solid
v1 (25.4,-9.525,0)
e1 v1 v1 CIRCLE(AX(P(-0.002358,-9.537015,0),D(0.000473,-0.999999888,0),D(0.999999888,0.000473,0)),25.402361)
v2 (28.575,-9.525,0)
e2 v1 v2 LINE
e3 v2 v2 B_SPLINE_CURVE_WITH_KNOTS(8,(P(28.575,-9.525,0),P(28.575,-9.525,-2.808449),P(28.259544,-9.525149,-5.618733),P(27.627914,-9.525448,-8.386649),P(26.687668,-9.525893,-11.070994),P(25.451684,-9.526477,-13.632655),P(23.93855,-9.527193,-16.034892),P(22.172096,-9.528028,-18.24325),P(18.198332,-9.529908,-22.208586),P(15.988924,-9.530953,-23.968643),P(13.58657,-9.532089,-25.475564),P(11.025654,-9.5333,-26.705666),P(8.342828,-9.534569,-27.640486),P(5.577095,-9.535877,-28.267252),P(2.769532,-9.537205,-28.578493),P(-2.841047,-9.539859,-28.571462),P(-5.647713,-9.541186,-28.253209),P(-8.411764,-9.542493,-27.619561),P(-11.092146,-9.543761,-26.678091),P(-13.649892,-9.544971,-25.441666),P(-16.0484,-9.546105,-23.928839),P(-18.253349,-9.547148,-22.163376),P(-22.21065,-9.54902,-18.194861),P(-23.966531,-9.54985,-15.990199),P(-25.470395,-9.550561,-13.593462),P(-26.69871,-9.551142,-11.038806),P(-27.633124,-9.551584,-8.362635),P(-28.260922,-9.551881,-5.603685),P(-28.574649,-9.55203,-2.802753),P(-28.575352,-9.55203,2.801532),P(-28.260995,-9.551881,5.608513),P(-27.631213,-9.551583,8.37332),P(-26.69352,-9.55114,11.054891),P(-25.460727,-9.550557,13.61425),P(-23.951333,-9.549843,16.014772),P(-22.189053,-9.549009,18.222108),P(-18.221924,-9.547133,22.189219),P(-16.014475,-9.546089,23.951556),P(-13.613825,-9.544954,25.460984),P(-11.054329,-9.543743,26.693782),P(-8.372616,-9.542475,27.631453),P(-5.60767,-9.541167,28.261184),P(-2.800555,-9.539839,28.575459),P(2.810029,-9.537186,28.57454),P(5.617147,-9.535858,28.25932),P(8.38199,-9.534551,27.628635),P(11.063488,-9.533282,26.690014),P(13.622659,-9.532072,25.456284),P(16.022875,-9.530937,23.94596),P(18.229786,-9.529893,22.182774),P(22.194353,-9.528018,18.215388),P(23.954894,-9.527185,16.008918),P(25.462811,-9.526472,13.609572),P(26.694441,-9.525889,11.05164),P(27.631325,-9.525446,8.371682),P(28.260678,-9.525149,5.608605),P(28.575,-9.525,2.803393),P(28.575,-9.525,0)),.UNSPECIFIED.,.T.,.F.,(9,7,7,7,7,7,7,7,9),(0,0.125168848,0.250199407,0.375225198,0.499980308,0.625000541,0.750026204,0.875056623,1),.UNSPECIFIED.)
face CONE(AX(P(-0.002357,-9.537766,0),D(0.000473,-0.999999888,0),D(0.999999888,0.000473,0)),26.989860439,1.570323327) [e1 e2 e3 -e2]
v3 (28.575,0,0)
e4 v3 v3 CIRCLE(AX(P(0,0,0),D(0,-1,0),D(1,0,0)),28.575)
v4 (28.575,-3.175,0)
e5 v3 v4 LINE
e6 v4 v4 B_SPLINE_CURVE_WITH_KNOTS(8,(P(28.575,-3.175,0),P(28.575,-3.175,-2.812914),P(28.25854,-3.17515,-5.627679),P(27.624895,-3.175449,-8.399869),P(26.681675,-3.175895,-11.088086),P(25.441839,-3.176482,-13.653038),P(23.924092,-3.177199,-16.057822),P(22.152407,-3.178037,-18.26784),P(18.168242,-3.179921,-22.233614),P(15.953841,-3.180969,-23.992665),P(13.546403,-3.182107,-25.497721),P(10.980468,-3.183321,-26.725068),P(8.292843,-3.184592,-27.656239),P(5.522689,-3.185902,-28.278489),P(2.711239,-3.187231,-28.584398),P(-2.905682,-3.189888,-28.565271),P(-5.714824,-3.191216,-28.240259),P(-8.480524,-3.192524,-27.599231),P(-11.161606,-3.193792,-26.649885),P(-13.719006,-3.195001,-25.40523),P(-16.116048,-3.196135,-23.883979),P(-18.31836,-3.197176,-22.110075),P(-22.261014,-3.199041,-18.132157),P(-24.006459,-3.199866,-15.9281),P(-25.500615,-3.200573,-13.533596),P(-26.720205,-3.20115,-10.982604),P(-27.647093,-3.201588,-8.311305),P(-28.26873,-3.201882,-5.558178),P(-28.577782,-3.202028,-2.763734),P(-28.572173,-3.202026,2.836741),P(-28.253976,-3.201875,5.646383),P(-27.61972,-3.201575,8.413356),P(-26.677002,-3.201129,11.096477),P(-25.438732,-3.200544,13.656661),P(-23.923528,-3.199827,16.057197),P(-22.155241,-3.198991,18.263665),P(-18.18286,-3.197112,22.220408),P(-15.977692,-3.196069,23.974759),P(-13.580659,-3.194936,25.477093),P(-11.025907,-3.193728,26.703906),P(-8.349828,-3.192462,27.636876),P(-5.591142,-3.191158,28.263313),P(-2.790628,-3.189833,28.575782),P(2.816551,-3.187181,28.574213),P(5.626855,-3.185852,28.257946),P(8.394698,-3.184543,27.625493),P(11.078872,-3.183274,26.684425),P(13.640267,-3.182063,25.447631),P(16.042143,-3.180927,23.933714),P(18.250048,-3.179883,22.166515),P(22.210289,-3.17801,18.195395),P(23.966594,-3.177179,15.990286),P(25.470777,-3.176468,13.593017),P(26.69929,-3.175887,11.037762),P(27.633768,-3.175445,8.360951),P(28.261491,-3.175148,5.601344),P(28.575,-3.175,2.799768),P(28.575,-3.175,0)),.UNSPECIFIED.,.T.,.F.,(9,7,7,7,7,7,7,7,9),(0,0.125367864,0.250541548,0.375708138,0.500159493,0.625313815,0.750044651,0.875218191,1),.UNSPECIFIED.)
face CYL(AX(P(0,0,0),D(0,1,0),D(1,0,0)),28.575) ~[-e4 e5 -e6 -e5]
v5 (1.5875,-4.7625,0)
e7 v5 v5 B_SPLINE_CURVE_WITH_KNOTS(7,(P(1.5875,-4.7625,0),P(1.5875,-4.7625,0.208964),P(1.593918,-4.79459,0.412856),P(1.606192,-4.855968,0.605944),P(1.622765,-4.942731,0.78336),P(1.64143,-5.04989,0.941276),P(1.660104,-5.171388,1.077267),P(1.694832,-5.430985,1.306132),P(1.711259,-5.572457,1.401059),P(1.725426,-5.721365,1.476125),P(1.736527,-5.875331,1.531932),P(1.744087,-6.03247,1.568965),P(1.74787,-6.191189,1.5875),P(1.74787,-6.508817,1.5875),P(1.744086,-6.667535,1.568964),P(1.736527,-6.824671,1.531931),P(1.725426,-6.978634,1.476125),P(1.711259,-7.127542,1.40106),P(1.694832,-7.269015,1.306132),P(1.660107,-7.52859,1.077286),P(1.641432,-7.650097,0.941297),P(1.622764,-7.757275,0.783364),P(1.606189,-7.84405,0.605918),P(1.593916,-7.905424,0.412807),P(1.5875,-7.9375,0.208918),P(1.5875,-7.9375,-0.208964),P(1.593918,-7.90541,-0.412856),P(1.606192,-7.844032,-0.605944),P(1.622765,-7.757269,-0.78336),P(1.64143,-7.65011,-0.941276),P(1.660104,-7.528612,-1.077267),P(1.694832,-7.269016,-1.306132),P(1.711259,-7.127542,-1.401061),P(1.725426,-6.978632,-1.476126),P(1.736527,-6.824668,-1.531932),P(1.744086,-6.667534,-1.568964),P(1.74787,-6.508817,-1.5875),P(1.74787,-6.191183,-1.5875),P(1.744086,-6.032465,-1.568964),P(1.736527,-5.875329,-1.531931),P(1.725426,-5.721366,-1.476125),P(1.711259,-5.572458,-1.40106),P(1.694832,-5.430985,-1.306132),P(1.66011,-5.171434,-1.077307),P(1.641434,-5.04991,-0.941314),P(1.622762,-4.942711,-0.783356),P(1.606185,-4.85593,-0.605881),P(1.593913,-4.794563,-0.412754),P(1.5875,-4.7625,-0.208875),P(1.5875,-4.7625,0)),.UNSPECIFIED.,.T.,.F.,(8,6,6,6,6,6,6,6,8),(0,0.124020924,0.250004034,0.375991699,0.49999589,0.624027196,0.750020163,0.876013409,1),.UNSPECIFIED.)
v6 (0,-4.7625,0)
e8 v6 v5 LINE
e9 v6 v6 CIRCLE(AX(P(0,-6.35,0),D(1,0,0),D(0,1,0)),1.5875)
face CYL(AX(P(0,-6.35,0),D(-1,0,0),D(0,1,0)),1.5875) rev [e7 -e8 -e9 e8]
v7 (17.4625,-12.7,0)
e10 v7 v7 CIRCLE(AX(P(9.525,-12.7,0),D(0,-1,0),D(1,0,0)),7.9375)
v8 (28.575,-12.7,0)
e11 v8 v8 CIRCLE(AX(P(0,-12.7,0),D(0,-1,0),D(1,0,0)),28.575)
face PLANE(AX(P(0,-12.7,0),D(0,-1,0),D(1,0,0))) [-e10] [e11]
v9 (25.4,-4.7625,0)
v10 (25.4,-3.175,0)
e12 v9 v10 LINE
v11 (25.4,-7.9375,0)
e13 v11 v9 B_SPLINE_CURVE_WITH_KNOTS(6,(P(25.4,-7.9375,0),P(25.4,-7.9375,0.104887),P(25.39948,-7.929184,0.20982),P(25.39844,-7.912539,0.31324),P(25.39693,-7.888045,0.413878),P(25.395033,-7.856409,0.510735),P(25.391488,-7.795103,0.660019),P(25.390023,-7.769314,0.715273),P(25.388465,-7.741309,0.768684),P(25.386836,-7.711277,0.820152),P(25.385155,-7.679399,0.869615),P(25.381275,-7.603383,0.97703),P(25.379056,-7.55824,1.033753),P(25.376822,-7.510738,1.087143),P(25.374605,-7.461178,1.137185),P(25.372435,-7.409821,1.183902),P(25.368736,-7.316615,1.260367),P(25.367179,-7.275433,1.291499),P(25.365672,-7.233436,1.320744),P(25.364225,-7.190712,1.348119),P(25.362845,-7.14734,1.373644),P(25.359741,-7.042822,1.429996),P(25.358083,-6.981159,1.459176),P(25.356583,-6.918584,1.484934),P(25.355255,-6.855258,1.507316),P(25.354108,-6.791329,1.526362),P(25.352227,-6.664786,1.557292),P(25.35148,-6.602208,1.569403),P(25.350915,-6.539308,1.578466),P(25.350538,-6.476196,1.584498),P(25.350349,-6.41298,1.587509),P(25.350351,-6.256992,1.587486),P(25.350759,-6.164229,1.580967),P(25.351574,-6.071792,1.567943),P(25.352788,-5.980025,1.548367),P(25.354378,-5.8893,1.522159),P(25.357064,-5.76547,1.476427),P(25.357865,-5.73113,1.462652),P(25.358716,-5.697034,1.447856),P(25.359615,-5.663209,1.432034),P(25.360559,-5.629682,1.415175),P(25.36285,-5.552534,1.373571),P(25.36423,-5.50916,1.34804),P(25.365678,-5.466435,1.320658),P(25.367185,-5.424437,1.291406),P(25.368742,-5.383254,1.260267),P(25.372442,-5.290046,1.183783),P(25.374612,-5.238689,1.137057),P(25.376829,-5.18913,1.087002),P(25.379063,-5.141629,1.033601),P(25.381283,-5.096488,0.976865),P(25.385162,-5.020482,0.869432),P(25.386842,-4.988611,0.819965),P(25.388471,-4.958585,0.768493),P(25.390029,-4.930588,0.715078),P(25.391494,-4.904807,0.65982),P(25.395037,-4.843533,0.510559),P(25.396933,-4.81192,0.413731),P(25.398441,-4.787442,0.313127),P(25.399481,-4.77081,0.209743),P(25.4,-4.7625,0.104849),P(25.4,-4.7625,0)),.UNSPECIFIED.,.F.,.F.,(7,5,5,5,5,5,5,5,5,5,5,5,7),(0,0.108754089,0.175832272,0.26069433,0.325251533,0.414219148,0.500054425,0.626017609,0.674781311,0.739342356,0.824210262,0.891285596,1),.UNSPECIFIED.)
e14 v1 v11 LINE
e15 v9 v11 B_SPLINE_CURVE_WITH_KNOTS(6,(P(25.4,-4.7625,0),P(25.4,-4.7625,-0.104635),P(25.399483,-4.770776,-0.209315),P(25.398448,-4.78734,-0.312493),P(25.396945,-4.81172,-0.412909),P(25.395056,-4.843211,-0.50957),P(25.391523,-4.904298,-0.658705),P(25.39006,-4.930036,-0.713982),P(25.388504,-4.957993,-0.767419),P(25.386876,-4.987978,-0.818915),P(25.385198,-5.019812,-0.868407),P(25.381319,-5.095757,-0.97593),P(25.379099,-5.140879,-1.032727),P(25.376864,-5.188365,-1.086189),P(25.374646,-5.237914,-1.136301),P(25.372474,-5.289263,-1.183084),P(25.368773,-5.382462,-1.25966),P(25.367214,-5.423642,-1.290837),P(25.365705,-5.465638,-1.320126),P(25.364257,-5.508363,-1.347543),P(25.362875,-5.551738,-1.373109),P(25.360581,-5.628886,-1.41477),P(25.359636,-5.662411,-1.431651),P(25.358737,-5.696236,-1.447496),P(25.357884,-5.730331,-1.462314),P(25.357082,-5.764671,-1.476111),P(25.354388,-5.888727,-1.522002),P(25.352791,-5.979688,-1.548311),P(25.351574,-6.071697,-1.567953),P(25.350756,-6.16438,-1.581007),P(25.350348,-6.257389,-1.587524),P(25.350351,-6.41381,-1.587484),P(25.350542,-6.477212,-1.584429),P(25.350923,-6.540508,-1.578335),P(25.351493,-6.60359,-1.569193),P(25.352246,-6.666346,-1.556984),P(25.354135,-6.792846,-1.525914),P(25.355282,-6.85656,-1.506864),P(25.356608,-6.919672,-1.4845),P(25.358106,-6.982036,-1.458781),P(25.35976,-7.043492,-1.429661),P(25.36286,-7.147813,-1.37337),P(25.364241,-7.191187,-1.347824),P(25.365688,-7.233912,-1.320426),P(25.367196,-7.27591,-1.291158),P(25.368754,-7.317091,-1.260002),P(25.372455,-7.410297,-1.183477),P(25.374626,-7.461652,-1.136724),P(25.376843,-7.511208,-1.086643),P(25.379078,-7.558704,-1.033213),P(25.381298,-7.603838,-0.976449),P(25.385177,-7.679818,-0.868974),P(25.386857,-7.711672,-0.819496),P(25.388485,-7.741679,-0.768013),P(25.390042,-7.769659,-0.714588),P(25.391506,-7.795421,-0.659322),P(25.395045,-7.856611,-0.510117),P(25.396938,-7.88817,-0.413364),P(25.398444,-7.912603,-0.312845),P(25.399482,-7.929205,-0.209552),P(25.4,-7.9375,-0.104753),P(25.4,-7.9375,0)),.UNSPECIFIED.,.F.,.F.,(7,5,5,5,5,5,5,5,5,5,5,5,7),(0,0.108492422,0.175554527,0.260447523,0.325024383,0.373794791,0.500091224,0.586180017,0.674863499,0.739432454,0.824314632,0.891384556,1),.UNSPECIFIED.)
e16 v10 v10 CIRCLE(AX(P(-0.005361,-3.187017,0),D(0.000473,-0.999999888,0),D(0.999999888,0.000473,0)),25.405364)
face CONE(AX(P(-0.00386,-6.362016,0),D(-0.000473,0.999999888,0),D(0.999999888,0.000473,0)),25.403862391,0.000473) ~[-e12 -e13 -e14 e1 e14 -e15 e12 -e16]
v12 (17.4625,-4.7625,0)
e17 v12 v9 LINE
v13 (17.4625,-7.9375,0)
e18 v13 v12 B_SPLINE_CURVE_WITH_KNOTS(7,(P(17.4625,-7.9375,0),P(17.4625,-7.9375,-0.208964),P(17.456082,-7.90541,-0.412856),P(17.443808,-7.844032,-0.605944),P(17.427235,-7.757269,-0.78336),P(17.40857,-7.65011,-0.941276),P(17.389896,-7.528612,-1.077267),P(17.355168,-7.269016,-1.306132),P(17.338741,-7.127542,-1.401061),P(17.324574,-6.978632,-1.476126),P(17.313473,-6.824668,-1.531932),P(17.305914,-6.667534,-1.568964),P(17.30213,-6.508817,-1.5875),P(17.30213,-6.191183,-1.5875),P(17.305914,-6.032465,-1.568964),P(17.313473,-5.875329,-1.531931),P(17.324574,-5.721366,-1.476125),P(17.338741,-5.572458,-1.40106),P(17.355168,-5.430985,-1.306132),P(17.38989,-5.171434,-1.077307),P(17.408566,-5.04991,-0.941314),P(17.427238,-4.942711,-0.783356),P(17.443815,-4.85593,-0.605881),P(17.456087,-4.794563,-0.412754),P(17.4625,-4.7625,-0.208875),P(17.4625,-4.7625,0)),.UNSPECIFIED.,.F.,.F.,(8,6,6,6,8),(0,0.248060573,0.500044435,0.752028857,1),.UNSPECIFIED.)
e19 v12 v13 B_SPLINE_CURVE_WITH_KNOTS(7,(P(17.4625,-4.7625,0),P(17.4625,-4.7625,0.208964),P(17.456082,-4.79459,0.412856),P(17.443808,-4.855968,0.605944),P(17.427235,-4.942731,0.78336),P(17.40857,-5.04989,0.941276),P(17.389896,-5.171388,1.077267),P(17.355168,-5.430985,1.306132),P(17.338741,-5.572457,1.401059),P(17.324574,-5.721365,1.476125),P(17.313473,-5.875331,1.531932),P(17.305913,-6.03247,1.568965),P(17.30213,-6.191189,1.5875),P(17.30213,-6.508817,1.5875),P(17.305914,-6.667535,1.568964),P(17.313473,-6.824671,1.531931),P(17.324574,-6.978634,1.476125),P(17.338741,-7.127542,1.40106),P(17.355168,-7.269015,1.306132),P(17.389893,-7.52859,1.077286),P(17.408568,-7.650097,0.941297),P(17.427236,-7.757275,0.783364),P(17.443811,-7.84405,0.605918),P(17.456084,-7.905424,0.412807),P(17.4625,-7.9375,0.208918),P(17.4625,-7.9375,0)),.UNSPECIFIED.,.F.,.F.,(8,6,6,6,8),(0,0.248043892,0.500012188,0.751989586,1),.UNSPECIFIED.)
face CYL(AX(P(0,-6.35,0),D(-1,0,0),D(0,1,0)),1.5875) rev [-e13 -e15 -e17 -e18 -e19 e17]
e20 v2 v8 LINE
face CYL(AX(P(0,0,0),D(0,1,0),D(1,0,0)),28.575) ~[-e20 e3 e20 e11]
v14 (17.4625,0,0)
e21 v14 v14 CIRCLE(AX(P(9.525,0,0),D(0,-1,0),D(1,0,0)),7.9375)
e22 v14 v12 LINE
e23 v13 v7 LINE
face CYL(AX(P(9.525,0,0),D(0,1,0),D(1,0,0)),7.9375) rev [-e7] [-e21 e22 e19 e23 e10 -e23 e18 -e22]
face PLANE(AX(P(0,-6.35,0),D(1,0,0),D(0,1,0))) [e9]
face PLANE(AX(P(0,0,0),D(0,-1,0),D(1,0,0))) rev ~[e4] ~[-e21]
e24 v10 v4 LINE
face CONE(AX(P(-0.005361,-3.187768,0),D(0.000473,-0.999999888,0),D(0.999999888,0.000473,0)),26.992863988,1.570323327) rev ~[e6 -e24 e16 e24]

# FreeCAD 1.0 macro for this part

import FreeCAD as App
import Part
import Sketcher
from FreeCAD import Vector
Q = App.Units.Quantity

doc = App.newDocument("Part")
body = doc.addObject("PartDesign::Body", "Body")

sketch1 = body.newObject("Sketcher::SketchObject", "Sketch")
sketch1.AttachmentSupport = (doc.getObject("XZ_Plane"), [""])
sketch1.MapMode = "FlatFace"
sketch1.addGeometry([
    Part.Circle(Vector(0, 0, 0), Vector(0, 0, 1), 29),
    Part.Circle(Vector(10, 0, 0), Vector(0, 0, 1), 8),
], False)
sketch1.addConstraint([
    Sketcher.Constraint("Coincident", 0, 3, -1, 1),
    Sketcher.Constraint("PointOnObject", 1, 3, -1),
    Sketcher.Constraint("Diameter", 0, Q("2.25 in")),
    Sketcher.Constraint("Diameter", 1, Q("0.625 in")),
    Sketcher.Constraint("DistanceX", -1, 1, 1, 3, Q("0.375 in")),
])
pad1 = body.newObject("PartDesign::Pad", "Pad")
pad1.Profile = sketch1
pad1.Length = Q("0.5 in")

sketch2 = body.newObject("Sketcher::SketchObject", "Sketch001")
sketch2.AttachmentSupport = (doc.getObject("XY_Plane"), [""])
sketch2.MapMode = "FlatFace"
sketch2.addGeometry([
    Part.LineSegment(Vector(25.4, -3.2, 0), Vector(25.4, -9.5, 0)),
    Part.LineSegment(Vector(25.4, -9.5, 0), Vector(28.6, -9.5, 0)),
    Part.LineSegment(Vector(28.6, -9.5, 0), Vector(28.6, -3.2, 0)),
    Part.LineSegment(Vector(28.6, -3.2, 0), Vector(25.4, -3.2, 0)),
], False)
sketch2.addGeometry(Part.LineSegment(Vector(0, -3.2, 0), Vector(0, -9.5, 0)), True)
sketch2.addConstraint([
    Sketcher.Constraint("Coincident", 0, 2, 1, 1),
    Sketcher.Constraint("Coincident", 1, 2, 2, 1),
    Sketcher.Constraint("Coincident", 2, 2, 3, 1),
    Sketcher.Constraint("Coincident", 3, 2, 0, 1),
    Sketcher.Constraint("Vertical", 0),
    Sketcher.Constraint("Horizontal", 1),
    Sketcher.Constraint("Vertical", 2),
    Sketcher.Constraint("Horizontal", 3),
    Sketcher.Constraint("DistanceX", -1, 1, 0, 2, Q("1 in")),
    Sketcher.Constraint("DistanceY", 0, 2, 0, 1, Q("0.25 in")),
    Sketcher.Constraint("DistanceX", 1, 1, 1, 2, Q("0.125 in")),
    Sketcher.Constraint("DistanceY", 0, 2, -1, 1, Q("0.375 in")),
    Sketcher.Constraint("Distance", 4, Q("6.351501 mm")),
    Sketcher.Constraint("DistanceX", 4, 1, -1, 1, Q("0.005361 mm")),
    Sketcher.Constraint("DistanceY", 4, 1, -1, 1, Q("3.187017 mm")),
    Sketcher.Constraint("DistanceX", 4, 2, -1, 1, Q("0.002357 mm")),
])
groove = body.newObject("PartDesign::Groove", "Groove")
groove.Profile = sketch2
groove.ReferenceAxis = (sketch2, ["Axis0"])
groove.Angle = 360

sketch3 = body.newObject("Sketcher::SketchObject", "Sketch002")
sketch3.AttachmentSupport = (doc.getObject("YZ_Plane"), [""])
sketch3.MapMode = "FlatFace"
sketch3.addGeometry(Part.Circle(Vector(-6.3, 0, 0), Vector(0, 0, 1), 1.6), False)
sketch3.addConstraint([
    Sketcher.Constraint("PointOnObject", 0, 3, -1),
    Sketcher.Constraint("Diameter", 0, Q("0.125 in")),
    Sketcher.Constraint("DistanceX", 0, 3, -1, 1, Q("0.25 in")),
])
pocket1 = body.newObject("PartDesign::Pocket", "Pocket")
pocket1.Profile = sketch3
pocket1.Length = Q("1 in")
pocket1.Reversed = True

doc.recompute()
